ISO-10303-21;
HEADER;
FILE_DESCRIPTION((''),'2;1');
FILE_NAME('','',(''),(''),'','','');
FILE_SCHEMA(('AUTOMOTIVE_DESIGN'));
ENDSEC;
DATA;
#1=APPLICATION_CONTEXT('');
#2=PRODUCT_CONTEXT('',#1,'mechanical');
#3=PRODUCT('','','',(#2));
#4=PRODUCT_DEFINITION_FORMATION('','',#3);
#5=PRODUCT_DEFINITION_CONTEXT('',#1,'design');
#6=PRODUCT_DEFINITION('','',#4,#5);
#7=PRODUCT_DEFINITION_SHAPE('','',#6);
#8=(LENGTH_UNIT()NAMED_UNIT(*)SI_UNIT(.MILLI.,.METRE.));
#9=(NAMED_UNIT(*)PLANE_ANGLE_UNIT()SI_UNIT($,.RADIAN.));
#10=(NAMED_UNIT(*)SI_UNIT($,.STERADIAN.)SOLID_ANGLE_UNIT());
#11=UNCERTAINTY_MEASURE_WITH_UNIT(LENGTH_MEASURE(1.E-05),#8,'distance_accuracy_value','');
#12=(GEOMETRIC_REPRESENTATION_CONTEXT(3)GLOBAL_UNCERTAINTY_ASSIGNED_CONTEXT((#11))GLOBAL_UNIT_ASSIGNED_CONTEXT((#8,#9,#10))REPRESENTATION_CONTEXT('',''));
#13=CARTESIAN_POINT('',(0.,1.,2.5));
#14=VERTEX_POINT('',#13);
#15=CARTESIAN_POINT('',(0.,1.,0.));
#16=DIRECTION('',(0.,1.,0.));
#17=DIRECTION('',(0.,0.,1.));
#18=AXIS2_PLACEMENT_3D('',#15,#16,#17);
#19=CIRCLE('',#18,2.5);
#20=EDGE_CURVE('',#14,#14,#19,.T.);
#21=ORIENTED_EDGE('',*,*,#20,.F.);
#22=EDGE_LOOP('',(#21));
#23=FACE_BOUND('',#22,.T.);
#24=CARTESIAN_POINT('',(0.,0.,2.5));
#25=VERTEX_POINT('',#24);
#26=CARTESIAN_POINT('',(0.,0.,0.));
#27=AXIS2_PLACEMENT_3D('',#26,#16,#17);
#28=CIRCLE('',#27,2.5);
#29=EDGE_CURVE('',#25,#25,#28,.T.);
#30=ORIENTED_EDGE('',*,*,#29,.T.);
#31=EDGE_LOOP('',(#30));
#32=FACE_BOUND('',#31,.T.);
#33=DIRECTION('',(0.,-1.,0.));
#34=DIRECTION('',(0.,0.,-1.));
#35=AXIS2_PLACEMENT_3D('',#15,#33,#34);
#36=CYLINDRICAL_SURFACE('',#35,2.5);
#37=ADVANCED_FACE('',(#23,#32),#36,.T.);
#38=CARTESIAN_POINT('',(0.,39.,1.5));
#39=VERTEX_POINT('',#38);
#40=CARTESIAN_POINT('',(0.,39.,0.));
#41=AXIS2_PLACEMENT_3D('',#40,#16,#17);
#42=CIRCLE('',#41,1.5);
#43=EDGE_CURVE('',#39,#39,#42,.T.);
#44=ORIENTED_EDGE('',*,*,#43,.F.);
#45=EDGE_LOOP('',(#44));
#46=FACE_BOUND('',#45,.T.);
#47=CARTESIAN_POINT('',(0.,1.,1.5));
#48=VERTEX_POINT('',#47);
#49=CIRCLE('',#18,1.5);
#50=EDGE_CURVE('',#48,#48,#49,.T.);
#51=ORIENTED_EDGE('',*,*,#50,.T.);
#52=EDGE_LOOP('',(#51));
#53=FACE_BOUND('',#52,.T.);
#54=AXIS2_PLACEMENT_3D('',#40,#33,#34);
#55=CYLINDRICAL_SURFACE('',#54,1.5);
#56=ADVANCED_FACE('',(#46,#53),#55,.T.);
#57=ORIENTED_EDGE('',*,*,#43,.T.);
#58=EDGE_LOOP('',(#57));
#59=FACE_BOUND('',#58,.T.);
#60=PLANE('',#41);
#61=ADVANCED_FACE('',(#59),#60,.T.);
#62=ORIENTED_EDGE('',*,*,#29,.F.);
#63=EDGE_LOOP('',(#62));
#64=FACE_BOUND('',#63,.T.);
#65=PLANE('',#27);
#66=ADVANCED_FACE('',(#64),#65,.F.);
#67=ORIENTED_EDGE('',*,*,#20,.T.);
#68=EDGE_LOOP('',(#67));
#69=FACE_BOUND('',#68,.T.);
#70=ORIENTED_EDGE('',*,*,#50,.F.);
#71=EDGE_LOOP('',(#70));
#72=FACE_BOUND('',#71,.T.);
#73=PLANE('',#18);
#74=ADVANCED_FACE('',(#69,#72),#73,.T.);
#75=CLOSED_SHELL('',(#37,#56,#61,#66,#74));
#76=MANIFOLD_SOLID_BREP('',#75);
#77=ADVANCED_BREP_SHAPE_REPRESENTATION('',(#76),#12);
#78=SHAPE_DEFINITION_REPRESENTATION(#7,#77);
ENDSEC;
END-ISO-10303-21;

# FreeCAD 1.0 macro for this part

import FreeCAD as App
import Part
import Sketcher
from FreeCAD import Vector

doc = App.newDocument("Part")
params = doc.addObject("Spreadsheet::Sheet", "Params")
for row, (alias, value) in enumerate([
    ("sketch1_diameter", "5 mm"),
    ("pad1_length", "1 mm"),
    ("sketch2_diameter", "3 mm"),
    ("pad2_length", "38 mm"),
], start=1):
    params.set(f"A{row}", alias)
    params.set(f"B{row}", "=" + value)
    params.setAlias(f"B{row}", alias)

body = doc.addObject("PartDesign::Body", "Body")

# Sketch on XZ plane
sketch1 = body.newObject("Sketcher::SketchObject", "Sketch")
sketch1.AttachmentSupport = (doc.getObject("XZ_Plane"), [""])
sketch1.MapMode = "FlatFace"
sketch1.addGeometry(Part.Circle(Vector(0, 0, 0), Vector(0, 0, 1), 2.5), False)
sketch1.addConstraint(Sketcher.Constraint("Coincident", 0, 3, -1, 1))
sketch1.addConstraint(Sketcher.Constraint("Diameter", 0, 5.0))
sketch1.setExpression("Constraints[1]", "Params.sketch1_diameter")
pad1 = body.newObject("PartDesign::Pad", "Pad")
pad1.Profile = sketch1
pad1.setExpression("Length", "Params.pad1_length")
pad1.Reversed = True

# Sketch on XZ plane
sketch2 = body.newObject("Sketcher::SketchObject", "Sketch001")
sketch2.AttachmentSupport = (doc.getObject("XZ_Plane"), [""])
sketch2.MapMode = "FlatFace"
sketch2.AttachmentOffset = App.Placement(Vector(0, 0, -1), App.Rotation())
sketch2.addGeometry(Part.Circle(Vector(0, 0, 0), Vector(0, 0, 1), 1.5), False)
sketch2.addConstraint(Sketcher.Constraint("Coincident", 0, 3, -1, 1))
sketch2.addConstraint(Sketcher.Constraint("Diameter", 0, 3.0))
sketch2.setExpression("Constraints[1]", "Params.sketch2_diameter")
pad2 = body.newObject("PartDesign::Pad", "Pad001")
pad2.Profile = sketch2
pad2.setExpression("Length", "Params.pad2_length")
pad2.Reversed = True

doc.recompute()
